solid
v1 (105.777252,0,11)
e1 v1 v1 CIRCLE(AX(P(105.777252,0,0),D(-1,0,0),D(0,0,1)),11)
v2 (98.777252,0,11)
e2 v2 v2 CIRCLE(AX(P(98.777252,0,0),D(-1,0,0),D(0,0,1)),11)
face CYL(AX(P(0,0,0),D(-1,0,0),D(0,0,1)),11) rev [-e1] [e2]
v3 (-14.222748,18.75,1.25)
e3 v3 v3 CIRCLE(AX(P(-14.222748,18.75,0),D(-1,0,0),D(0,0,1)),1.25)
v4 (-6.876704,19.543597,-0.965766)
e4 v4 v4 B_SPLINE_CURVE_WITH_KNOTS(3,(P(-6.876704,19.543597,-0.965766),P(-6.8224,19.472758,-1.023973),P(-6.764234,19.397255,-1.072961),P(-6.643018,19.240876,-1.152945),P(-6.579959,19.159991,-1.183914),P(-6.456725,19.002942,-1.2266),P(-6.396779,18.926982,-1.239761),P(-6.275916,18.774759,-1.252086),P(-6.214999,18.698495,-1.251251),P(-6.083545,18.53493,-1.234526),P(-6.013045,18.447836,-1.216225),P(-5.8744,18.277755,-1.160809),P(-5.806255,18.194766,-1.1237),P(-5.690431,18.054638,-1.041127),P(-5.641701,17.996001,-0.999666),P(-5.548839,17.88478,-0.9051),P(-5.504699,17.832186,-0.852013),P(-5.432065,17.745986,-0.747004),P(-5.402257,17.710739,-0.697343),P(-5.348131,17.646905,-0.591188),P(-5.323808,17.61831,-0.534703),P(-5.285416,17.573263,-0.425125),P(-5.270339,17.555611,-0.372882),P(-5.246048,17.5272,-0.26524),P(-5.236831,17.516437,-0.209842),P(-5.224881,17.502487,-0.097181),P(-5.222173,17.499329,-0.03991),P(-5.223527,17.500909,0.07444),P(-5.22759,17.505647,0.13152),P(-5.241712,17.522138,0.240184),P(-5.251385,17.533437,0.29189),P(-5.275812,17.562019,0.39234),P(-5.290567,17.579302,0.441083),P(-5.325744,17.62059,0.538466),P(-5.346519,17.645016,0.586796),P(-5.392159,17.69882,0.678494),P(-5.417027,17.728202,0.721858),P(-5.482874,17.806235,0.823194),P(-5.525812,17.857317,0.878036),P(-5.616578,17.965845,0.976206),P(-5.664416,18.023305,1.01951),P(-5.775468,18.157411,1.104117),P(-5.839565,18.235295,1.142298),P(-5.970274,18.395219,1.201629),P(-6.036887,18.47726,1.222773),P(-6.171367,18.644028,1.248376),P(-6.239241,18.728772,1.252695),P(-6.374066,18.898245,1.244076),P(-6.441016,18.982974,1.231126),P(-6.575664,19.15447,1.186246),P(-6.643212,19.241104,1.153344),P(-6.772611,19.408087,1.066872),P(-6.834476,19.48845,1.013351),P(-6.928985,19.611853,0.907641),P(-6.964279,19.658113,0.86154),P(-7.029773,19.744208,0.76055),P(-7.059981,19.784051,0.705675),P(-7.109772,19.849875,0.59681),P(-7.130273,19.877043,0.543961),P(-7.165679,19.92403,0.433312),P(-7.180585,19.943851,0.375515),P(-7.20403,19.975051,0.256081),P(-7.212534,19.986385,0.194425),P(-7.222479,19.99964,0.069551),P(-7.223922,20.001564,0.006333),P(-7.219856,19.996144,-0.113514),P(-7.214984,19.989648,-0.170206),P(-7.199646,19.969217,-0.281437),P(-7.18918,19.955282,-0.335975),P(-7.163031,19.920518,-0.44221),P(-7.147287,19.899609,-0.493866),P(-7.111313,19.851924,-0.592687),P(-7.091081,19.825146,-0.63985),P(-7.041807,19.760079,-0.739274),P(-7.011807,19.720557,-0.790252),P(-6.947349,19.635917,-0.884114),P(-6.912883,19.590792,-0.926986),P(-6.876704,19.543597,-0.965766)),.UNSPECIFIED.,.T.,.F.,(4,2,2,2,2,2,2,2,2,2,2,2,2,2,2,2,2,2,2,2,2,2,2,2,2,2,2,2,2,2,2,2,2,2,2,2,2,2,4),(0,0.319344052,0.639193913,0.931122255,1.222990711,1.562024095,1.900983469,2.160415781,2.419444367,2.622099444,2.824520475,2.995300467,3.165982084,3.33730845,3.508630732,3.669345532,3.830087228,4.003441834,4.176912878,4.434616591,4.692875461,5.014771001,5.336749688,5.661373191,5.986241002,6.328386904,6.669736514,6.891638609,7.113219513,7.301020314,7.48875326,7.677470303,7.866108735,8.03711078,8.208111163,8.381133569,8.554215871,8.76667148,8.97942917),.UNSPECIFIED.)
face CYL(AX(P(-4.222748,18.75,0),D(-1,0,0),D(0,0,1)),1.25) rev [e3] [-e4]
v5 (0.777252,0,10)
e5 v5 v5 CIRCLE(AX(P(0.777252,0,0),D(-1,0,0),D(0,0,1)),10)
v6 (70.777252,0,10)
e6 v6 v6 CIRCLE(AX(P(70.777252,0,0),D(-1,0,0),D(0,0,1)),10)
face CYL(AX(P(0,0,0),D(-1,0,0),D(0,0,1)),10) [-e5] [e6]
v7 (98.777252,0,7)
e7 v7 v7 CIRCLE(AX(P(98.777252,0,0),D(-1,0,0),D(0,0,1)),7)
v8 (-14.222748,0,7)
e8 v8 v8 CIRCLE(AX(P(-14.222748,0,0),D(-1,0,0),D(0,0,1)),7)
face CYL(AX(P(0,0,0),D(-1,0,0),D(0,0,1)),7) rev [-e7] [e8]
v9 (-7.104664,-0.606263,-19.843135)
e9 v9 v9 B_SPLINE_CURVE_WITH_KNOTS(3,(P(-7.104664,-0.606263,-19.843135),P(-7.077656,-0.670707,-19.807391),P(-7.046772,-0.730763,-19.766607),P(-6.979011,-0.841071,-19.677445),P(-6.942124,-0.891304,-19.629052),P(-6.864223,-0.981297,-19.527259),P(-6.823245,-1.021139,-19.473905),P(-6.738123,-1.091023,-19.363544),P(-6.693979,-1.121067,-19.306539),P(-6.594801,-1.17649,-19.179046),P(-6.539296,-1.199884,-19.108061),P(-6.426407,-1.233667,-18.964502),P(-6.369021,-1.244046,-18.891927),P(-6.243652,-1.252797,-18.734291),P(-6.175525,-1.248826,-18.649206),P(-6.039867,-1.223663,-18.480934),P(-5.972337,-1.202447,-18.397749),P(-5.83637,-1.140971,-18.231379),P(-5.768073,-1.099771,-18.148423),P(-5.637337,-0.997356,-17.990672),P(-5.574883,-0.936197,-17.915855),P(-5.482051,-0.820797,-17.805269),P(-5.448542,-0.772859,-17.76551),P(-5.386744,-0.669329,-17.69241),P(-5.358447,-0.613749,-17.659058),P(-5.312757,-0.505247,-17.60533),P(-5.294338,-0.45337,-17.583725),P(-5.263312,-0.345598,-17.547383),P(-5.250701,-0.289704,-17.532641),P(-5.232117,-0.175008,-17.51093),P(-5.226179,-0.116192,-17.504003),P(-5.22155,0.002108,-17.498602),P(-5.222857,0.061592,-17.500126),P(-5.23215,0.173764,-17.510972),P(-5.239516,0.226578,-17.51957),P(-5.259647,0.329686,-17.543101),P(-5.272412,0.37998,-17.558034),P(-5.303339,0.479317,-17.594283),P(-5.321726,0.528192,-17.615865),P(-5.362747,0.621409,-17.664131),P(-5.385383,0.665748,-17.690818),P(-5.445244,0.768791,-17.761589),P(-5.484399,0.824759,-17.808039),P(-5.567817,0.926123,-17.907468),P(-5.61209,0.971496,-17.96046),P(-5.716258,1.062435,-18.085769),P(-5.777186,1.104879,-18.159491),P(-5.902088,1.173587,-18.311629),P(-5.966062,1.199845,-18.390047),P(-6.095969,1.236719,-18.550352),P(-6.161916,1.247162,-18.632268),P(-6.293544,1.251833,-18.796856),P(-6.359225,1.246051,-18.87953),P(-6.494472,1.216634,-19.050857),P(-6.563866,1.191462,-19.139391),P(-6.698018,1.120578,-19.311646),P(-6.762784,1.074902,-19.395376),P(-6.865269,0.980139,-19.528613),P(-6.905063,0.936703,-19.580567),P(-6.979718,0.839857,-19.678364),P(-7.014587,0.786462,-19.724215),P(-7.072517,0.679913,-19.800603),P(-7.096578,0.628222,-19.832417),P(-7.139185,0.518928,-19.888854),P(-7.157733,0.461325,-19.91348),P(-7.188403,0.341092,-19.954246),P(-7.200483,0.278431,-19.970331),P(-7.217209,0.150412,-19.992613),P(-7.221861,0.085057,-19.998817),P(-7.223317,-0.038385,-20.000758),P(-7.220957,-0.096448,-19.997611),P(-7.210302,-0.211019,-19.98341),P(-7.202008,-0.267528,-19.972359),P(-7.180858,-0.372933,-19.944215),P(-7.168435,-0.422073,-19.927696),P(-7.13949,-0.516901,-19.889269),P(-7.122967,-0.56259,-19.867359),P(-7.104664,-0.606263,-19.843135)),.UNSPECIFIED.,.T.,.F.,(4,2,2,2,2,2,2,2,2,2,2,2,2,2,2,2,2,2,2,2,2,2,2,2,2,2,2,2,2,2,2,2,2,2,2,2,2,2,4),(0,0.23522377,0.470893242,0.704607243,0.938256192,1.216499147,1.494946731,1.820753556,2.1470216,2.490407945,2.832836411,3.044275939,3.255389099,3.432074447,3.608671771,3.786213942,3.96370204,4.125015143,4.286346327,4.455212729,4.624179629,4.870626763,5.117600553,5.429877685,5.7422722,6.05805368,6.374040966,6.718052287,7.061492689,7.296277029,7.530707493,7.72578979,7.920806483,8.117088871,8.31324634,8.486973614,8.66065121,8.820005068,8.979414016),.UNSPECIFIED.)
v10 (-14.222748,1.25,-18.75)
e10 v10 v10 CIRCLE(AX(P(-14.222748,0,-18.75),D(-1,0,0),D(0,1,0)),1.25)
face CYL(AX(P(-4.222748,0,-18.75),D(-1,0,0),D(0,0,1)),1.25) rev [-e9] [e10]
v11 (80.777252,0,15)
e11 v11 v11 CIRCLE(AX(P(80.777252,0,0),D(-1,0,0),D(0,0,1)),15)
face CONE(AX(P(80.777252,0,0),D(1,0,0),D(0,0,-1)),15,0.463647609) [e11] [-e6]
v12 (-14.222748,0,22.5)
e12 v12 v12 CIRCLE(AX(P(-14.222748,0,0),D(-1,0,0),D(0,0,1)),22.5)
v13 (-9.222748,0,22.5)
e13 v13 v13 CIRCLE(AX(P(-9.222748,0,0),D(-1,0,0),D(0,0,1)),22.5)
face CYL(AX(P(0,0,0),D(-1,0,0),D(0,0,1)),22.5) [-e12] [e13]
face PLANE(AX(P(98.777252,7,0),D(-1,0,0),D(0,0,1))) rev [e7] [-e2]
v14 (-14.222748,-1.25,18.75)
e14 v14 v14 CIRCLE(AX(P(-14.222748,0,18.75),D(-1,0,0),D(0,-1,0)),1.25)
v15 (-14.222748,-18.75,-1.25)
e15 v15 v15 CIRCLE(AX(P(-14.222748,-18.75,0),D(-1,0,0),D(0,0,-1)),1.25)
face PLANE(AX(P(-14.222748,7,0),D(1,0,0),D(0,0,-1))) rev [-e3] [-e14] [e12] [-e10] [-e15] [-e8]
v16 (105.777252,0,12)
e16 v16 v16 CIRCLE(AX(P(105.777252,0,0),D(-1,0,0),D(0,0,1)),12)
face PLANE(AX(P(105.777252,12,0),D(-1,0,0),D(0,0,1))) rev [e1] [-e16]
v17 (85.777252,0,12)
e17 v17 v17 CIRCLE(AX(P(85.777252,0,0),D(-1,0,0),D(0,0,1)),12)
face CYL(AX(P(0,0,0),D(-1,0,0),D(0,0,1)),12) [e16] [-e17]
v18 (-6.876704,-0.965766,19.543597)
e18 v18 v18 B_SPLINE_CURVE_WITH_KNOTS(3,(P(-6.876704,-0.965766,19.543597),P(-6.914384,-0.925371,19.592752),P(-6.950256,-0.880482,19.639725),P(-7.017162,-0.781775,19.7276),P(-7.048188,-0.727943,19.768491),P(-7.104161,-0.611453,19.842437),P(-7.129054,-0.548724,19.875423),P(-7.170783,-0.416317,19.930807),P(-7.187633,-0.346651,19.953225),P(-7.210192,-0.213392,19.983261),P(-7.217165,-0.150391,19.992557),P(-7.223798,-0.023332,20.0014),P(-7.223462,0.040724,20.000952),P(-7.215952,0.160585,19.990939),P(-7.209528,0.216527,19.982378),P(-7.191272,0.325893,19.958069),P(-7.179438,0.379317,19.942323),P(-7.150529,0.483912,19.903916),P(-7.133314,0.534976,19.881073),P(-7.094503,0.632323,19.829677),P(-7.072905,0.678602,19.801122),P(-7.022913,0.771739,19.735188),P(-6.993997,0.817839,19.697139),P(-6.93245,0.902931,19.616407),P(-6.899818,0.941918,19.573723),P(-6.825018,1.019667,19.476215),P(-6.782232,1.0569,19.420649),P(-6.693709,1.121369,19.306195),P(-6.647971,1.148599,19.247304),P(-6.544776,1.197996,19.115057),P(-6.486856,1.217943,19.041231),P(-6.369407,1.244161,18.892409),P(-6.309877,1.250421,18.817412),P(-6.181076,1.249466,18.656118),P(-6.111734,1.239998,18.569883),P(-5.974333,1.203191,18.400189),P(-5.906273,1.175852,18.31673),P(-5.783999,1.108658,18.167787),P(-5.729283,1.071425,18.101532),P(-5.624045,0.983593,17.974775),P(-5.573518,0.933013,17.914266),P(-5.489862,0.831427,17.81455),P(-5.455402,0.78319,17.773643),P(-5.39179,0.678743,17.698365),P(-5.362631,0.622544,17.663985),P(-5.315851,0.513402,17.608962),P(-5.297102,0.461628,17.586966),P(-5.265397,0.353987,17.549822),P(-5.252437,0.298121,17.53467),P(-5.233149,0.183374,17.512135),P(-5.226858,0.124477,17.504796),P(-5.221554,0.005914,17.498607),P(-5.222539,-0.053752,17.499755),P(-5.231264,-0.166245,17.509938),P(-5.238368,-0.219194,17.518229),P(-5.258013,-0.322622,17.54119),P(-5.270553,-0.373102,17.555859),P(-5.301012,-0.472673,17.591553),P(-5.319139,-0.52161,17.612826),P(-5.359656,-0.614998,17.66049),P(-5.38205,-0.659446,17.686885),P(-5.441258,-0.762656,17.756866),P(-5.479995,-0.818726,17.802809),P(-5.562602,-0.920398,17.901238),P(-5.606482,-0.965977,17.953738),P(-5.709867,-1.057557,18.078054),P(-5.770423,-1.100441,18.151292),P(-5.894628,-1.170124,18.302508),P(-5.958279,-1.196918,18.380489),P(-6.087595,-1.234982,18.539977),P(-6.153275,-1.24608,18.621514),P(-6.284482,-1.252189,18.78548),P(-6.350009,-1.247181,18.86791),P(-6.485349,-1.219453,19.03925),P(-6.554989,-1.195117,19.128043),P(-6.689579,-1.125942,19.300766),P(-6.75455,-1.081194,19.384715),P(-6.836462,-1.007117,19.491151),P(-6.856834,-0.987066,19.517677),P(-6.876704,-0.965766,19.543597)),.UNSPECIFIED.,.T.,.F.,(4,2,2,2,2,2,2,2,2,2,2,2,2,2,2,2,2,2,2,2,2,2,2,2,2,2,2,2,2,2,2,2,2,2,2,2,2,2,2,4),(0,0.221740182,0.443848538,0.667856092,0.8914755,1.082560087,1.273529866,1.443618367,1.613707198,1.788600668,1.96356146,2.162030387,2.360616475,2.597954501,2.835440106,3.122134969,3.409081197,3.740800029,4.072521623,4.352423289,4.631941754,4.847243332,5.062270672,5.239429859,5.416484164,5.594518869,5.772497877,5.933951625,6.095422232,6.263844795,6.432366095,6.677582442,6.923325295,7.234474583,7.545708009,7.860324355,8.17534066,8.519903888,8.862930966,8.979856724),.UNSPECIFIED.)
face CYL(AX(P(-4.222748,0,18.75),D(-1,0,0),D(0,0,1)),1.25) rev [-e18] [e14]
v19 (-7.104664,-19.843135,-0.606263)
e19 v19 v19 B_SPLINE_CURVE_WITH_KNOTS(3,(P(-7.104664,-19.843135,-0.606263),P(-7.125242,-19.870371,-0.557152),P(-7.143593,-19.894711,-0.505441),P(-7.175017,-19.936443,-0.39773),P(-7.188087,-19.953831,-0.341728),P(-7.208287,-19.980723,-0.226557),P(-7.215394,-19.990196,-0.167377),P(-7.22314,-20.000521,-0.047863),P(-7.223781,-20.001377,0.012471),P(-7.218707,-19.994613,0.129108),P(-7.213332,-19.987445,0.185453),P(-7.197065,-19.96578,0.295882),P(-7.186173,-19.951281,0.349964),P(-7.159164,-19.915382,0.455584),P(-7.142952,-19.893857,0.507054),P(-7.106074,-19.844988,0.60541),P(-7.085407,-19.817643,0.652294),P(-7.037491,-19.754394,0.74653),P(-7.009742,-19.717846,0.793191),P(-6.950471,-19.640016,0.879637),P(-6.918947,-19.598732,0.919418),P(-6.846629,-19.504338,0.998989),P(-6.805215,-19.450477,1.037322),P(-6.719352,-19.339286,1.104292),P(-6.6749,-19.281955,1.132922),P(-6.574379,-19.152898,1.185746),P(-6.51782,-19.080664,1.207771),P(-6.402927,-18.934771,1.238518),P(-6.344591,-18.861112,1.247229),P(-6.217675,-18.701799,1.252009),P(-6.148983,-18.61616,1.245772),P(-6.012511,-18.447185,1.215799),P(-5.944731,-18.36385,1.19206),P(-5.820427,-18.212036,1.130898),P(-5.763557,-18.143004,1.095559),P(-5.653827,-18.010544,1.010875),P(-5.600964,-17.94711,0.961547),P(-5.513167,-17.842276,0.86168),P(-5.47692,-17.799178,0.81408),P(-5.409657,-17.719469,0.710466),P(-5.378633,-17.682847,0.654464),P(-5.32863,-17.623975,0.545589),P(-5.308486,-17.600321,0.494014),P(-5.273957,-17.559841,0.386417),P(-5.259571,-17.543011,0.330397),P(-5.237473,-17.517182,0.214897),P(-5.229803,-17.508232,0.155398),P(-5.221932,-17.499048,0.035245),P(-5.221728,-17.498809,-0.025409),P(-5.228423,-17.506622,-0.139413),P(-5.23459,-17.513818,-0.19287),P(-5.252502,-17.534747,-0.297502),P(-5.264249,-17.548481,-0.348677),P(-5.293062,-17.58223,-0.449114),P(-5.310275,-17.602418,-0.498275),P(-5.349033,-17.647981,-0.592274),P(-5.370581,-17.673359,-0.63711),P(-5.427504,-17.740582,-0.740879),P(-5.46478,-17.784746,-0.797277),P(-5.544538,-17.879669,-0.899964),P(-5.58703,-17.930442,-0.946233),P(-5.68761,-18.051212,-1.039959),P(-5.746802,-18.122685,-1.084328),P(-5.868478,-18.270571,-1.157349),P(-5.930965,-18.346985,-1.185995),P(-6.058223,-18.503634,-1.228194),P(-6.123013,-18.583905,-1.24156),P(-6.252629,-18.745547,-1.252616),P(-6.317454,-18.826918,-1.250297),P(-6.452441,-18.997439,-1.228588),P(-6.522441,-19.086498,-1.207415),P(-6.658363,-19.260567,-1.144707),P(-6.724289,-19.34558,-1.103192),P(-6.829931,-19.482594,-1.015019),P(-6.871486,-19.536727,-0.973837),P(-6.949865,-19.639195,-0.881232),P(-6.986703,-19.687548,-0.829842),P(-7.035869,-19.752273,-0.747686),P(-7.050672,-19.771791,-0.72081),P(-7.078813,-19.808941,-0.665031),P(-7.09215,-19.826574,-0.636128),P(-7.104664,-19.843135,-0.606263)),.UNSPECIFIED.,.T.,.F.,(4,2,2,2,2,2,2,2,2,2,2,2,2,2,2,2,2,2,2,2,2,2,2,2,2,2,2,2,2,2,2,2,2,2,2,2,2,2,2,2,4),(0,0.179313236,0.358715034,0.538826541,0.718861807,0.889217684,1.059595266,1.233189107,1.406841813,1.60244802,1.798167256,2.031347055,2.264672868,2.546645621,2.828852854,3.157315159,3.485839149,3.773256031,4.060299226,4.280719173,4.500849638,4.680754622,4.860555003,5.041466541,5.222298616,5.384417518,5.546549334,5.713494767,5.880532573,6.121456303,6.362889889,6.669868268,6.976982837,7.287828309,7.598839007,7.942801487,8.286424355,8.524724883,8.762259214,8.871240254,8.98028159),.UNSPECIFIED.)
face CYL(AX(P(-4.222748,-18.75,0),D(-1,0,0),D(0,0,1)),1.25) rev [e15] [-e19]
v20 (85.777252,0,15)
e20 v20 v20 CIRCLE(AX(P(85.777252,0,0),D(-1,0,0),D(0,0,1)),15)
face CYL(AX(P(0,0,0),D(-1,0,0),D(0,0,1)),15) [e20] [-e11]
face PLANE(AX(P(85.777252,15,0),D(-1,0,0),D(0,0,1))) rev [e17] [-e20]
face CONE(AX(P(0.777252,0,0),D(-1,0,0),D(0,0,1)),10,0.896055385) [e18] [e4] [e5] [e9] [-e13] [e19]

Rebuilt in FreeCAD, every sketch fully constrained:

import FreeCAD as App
import Part
import Sketcher

doc = App.newDocument("Part")
body = doc.addObject("PartDesign::Body", "Body")

# Sketch on XY plane
sketch1 = doc.addObject("Sketcher::SketchObject", "Sketch")
body.addObject(sketch1)
sketch1.AttachmentSupport = (doc.XY_Plane, [""])
sketch1.MapMode = "FlatFace"
sketch1.addGeometry(Part.LineSegment(App.Vector(-14.2, 7, 0), App.Vector(98.8, 7, 0)), False)
sketch1.addGeometry(Part.LineSegment(App.Vector(98.8, 7, 0), App.Vector(98.8, 11, 0)), False)
sketch1.addGeometry(Part.LineSegment(App.Vector(98.8, 11, 0), App.Vector(105.8, 11, 0)), False)
sketch1.addGeometry(Part.LineSegment(App.Vector(105.8, 11, 0), App.Vector(105.8, 12, 0)), False)
sketch1.addGeometry(Part.LineSegment(App.Vector(105.8, 12, 0), App.Vector(85.8, 12, 0)), False)
sketch1.addGeometry(Part.LineSegment(App.Vector(85.8, 12, 0), App.Vector(85.8, 15, 0)), False)
sketch1.addGeometry(Part.LineSegment(App.Vector(85.8, 15, 0), App.Vector(80.8, 15, 0)), False)
sketch1.addGeometry(Part.LineSegment(App.Vector(80.8, 15, 0), App.Vector(70.8, 10, 0)), False)
sketch1.addGeometry(Part.LineSegment(App.Vector(70.8, 10, 0), App.Vector(0.8, 10, 0)), False)
sketch1.addGeometry(Part.LineSegment(App.Vector(0.8, 10, 0), App.Vector(-9.2, 22.5, 0)), False)
sketch1.addGeometry(Part.LineSegment(App.Vector(-9.2, 22.5, 0), App.Vector(-14.2, 22.5, 0)), False)
sketch1.addGeometry(Part.LineSegment(App.Vector(-14.2, 22.5, 0), App.Vector(-14.2, 7, 0)), False)
sketch1.addConstraint(Sketcher.Constraint("Coincident", 0, 2, 1, 1))
sketch1.addConstraint(Sketcher.Constraint("Coincident", 1, 2, 2, 1))
sketch1.addConstraint(Sketcher.Constraint("Coincident", 2, 2, 3, 1))
sketch1.addConstraint(Sketcher.Constraint("Coincident", 3, 2, 4, 1))
sketch1.addConstraint(Sketcher.Constraint("Coincident", 4, 2, 5, 1))
sketch1.addConstraint(Sketcher.Constraint("Coincident", 5, 2, 6, 1))
sketch1.addConstraint(Sketcher.Constraint("Coincident", 6, 2, 7, 1))
sketch1.addConstraint(Sketcher.Constraint("Coincident", 7, 2, 8, 1))
sketch1.addConstraint(Sketcher.Constraint("Coincident", 8, 2, 9, 1))
sketch1.addConstraint(Sketcher.Constraint("Coincident", 9, 2, 10, 1))
sketch1.addConstraint(Sketcher.Constraint("Coincident", 10, 2, 11, 1))
sketch1.addConstraint(Sketcher.Constraint("Coincident", 11, 2, 0, 1))
sketch1.addConstraint(Sketcher.Constraint("Horizontal", 0))
sketch1.addConstraint(Sketcher.Constraint("Vertical", 1))
sketch1.addConstraint(Sketcher.Constraint("Horizontal", 2))
sketch1.addConstraint(Sketcher.Constraint("Vertical", 3))
sketch1.addConstraint(Sketcher.Constraint("Horizontal", 4))
sketch1.addConstraint(Sketcher.Constraint("Vertical", 5))
sketch1.addConstraint(Sketcher.Constraint("Horizontal", 6))
sketch1.addConstraint(Sketcher.Constraint("Horizontal", 8))
sketch1.addConstraint(Sketcher.Constraint("Horizontal", 10))
sketch1.addConstraint(Sketcher.Constraint("Vertical", 11))
sketch1.addConstraint(Sketcher.Constraint("Equal", 6, 10))
sketch1.addConstraint(Sketcher.Constraint("DistanceX", 0, 1, 0, 2, 113.0))
sketch1.addConstraint(Sketcher.Constraint("DistanceX", 2, 1, 2, 2, 7.0))
sketch1.addConstraint(Sketcher.Constraint("DistanceX", 4, 2, 4, 1, 20.0))
sketch1.addConstraint(Sketcher.Constraint("DistanceX", 6, 2, 6, 1, 5.0))
sketch1.addConstraint(Sketcher.Constraint("DistanceX", 8, 2, 8, 1, 70.0))
sketch1.addConstraint(Sketcher.Constraint("DistanceY", 1, 1, 1, 2, 4.0))
sketch1.addConstraint(Sketcher.Constraint("DistanceY", 3, 1, 3, 2, 1.0))
sketch1.addConstraint(Sketcher.Constraint("DistanceY", 5, 1, 5, 2, 3.0))
sketch1.addConstraint(Sketcher.Constraint("DistanceY", 11, 2, 11, 1, 15.5))
sketch1.addConstraint(Sketcher.Constraint("DistanceY", -1, 1, 0, 2, 7.0))
sketch1.addConstraint(Sketcher.Constraint("DistanceY", -1, 1, 7, 2, 10.0))
sketch1.addConstraint(Sketcher.Constraint("DistanceX", 7, 2, 6, 2, 10.0))
sketch1.addConstraint(Sketcher.Constraint("DistanceX", -1, 1, 0, 2, 98.777252))
revolution = doc.addObject("PartDesign::Revolution", "Revolution")
body.addObject(revolution)
revolution.Profile = sketch1
revolution.ReferenceAxis = (sketch1, ["H_Axis"])
revolution.Angle = 360

# Sketch on YZ plane
sketch2 = doc.addObject("Sketcher::SketchObject", "Sketch001")
body.addObject(sketch2)
sketch2.AttachmentSupport = (doc.YZ_Plane, [""])
sketch2.MapMode = "FlatFace"
sketch2.AttachmentOffset = App.Placement(App.Vector(0, 0, -14.222748), App.Rotation())
sketch2.addGeometry(Part.Circle(App.Vector(18.8, 0, 0), App.Vector(0, 0, 1), 1.2), False)
sketch2.addConstraint(Sketcher.Constraint("PointOnObject", 0, 3, -1))
sketch2.addConstraint(Sketcher.Constraint("Diameter", 0, 2.5))
sketch2.addConstraint(Sketcher.Constraint("DistanceX", -1, 1, 0, 3, 18.75))
pocket1 = doc.addObject("PartDesign::Pocket", "Pocket")
body.addObject(pocket1)
pocket1.Profile = sketch2
pocket1.Length = 10
pocket1.Reversed = True
doc.recompute()

polarpattern = doc.addObject("PartDesign::PolarPattern", "PolarPattern")
body.addObject(polarpattern)
polarpattern.Originals = [pocket1]
polarpattern.Axis = (doc.X_Axis, [""])
polarpattern.Angle = 360
polarpattern.Occurrences = 4
body.Tip = polarpattern

doc.recompute()
